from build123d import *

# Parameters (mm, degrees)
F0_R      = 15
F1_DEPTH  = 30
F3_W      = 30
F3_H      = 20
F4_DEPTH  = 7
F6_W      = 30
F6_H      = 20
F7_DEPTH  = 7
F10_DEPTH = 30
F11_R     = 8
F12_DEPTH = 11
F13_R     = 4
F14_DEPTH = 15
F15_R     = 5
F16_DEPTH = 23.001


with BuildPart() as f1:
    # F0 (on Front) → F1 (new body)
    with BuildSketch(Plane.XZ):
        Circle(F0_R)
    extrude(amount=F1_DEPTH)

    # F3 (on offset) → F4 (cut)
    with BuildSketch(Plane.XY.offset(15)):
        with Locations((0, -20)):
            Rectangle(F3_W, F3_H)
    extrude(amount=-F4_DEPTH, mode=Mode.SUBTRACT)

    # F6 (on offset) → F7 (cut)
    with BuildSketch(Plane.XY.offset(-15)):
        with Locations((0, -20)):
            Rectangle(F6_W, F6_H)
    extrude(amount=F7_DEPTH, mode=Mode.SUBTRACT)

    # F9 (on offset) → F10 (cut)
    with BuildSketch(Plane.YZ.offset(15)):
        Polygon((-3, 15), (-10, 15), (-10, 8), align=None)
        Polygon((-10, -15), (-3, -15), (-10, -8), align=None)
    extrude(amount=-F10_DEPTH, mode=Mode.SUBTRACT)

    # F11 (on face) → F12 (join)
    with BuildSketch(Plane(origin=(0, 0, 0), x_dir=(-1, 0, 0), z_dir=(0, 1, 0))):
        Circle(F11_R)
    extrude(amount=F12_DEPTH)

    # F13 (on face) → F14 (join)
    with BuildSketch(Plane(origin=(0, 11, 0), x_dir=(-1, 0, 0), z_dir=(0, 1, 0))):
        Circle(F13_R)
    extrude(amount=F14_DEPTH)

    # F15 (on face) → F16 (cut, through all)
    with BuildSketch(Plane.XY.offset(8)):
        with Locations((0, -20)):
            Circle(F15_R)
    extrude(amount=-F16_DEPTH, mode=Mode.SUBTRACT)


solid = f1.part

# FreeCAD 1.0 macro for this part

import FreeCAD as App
import Part
import Sketcher
from FreeCAD import Vector

doc = App.newDocument("Part")
body = doc.addObject("PartDesign::Body", "Body")

# Sketch on XZ plane
sketch1 = doc.addObject("Sketcher::SketchObject", "Sketch")
body.addObject(sketch1)
sketch1.AttachmentSupport = (doc.XZ_Plane, [""])
sketch1.MapMode = "FlatFace"
sketch1.addGeometry(Part.Circle(Vector(0, 0, 0), Vector(0, 0, 1), 15), False)
sketch1.addConstraint([
    Sketcher.Constraint("Coincident", 0, 3, -1, 1),
    Sketcher.Constraint("Diameter", 0, 30.0),
])
pad1 = doc.addObject("PartDesign::Pad", "Pad")
body.addObject(pad1)
pad1.Profile = sketch1
pad1.Length = 30

# Sketch on XY plane
sketch2 = doc.addObject("Sketcher::SketchObject", "Sketch001")
body.addObject(sketch2)
sketch2.AttachmentSupport = (doc.XY_Plane, [""])
sketch2.MapMode = "FlatFace"
sketch2.AttachmentOffset = App.Placement(Vector(0, 0, 15), App.Rotation())
sketch2.addGeometry([
    Part.LineSegment(Vector(-15, -10, 0), Vector(-15, -30, 0)),
    Part.LineSegment(Vector(-15, -30, 0), Vector(15, -30, 0)),
    Part.LineSegment(Vector(15, -30, 0), Vector(15, -10, 0)),
    Part.LineSegment(Vector(15, -10, 0), Vector(-15, -10, 0)),
], False)
sketch2.addConstraint([
    Sketcher.Constraint("Coincident", 0, 2, 1, 1),
    Sketcher.Constraint("Coincident", 1, 2, 2, 1),
    Sketcher.Constraint("Coincident", 2, 2, 3, 1),
    Sketcher.Constraint("Coincident", 3, 2, 0, 1),
    Sketcher.Constraint("Vertical", 0),
    Sketcher.Constraint("Horizontal", 1),
    Sketcher.Constraint("Vertical", 2),
    Sketcher.Constraint("Horizontal", 3),
    Sketcher.Constraint("DistanceX", 1, 1, 1, 2, 30.0),
    Sketcher.Constraint("DistanceY", 0, 2, 0, 1, 20.0),
    Sketcher.Constraint("DistanceX", 0, 2, -1, 1, 15.0),
    Sketcher.Constraint("DistanceY", 0, 2, -1, 1, 30.0),
])
pocket1 = doc.addObject("PartDesign::Pocket", "Pocket")
body.addObject(pocket1)
pocket1.Profile = sketch2
pocket1.Length = 7

# Sketch on XY plane
sketch3 = doc.addObject("Sketcher::SketchObject", "Sketch002")
body.addObject(sketch3)
sketch3.AttachmentSupport = (doc.XY_Plane, [""])
sketch3.MapMode = "FlatFace"
sketch3.AttachmentOffset = App.Placement(Vector(0, 0, -15), App.Rotation())
sketch3.addGeometry([
    Part.LineSegment(Vector(-15, -10, 0), Vector(-15, -30, 0)),
    Part.LineSegment(Vector(-15, -30, 0), Vector(15, -30, 0)),
    Part.LineSegment(Vector(15, -30, 0), Vector(15, -10, 0)),
    Part.LineSegment(Vector(15, -10, 0), Vector(-15, -10, 0)),
], False)
sketch3.addConstraint([
    Sketcher.Constraint("Coincident", 0, 2, 1, 1),
    Sketcher.Constraint("Coincident", 1, 2, 2, 1),
    Sketcher.Constraint("Coincident", 2, 2, 3, 1),
    Sketcher.Constraint("Coincident", 3, 2, 0, 1),
    Sketcher.Constraint("Vertical", 0),
    Sketcher.Constraint("Horizontal", 1),
    Sketcher.Constraint("Vertical", 2),
    Sketcher.Constraint("Horizontal", 3),
    Sketcher.Constraint("DistanceX", 1, 1, 1, 2, 30.0),
    Sketcher.Constraint("DistanceY", 0, 2, 0, 1, 20.0),
    Sketcher.Constraint("DistanceX", 0, 2, -1, 1, 15.0),
    Sketcher.Constraint("DistanceY", 0, 2, -1, 1, 30.0),
])
pocket2 = doc.addObject("PartDesign::Pocket", "Pocket001")
body.addObject(pocket2)
pocket2.Profile = sketch3
pocket2.Length = 7
pocket2.Reversed = True

# Sketch on YZ plane
sketch4 = doc.addObject("Sketcher::SketchObject", "Sketch003")
body.addObject(sketch4)
sketch4.AttachmentSupport = (doc.YZ_Plane, [""])
sketch4.MapMode = "FlatFace"
sketch4.AttachmentOffset = App.Placement(Vector(0, 0, 15), App.Rotation())
sketch4.addGeometry([
    Part.LineSegment(Vector(-3, 15, 0), Vector(-10, 15, 0)),  # 0
    Part.LineSegment(Vector(-10, 15, 0), Vector(-10, 8, 0)),  # 1
    Part.LineSegment(Vector(-10, 8, 0), Vector(-3, 15, 0)),  # 2
    Part.LineSegment(Vector(-10, -15, 0), Vector(-3, -15, 0)),  # 3
    Part.LineSegment(Vector(-3, -15, 0), Vector(-10, -8, 0)),  # 4
    Part.LineSegment(Vector(-10, -8, 0), Vector(-10, -15, 0)),  # 5
], False)
sketch4.addConstraint([
    Sketcher.Constraint("Coincident", 0, 2, 1, 1),
    Sketcher.Constraint("Coincident", 1, 2, 2, 1),
    Sketcher.Constraint("Coincident", 2, 2, 0, 1),
    Sketcher.Constraint("Coincident", 3, 2, 4, 1),
    Sketcher.Constraint("Coincident", 4, 2, 5, 1),
    Sketcher.Constraint("Coincident", 5, 2, 3, 1),
    Sketcher.Constraint("Horizontal", 0),
    Sketcher.Constraint("Vertical", 1),
    Sketcher.Constraint("Horizontal", 3),
    Sketcher.Constraint("Vertical", 5),
    Sketcher.Constraint("Symmetric", 2, 2, 3, 2, -1),
    Sketcher.Constraint("Symmetric", 1, 2, 4, 2, -1),
    Sketcher.Constraint("Perpendicular", 2, 4),
    Sketcher.Constraint("DistanceX", 0, 2, 0, 1, 7.0),
    Sketcher.Constraint("DistanceX", 0, 2, -1, 1, 10.0),
    Sketcher.Constraint("DistanceY", -1, 1, 0, 2, 15.0),
])
pocket3 = doc.addObject("PartDesign::Pocket", "Pocket002")
body.addObject(pocket3)
pocket3.Profile = sketch4
pocket3.Length = 30

# Sketch on XZ plane
sketch5 = doc.addObject("Sketcher::SketchObject", "Sketch004")
body.addObject(sketch5)
sketch5.AttachmentSupport = (doc.XZ_Plane, [""])
sketch5.MapMode = "FlatFace"
sketch5.addGeometry(Part.Circle(Vector(0, 0, 0), Vector(0, 0, 1), 8), False)
sketch5.addConstraint([
    Sketcher.Constraint("Coincident", 0, 3, -1, 1),
    Sketcher.Constraint("Diameter", 0, 16.0),
])
pad2 = doc.addObject("PartDesign::Pad", "Pad001")
body.addObject(pad2)
pad2.Profile = sketch5
pad2.Length = 11
pad2.Reversed = True

# Sketch on XZ plane
sketch6 = doc.addObject("Sketcher::SketchObject", "Sketch005")
body.addObject(sketch6)
sketch6.AttachmentSupport = (doc.XZ_Plane, [""])
sketch6.MapMode = "FlatFace"
sketch6.AttachmentOffset = App.Placement(Vector(0, 0, -11), App.Rotation())
sketch6.addGeometry(Part.Circle(Vector(0, 0, 0), Vector(0, 0, 1), 4), False)
sketch6.addConstraint([
    Sketcher.Constraint("Coincident", 0, 3, -1, 1),
    Sketcher.Constraint("Diameter", 0, 8.0),
])
pad3 = doc.addObject("PartDesign::Pad", "Pad002")
body.addObject(pad3)
pad3.Profile = sketch6
pad3.Length = 15
pad3.Reversed = True

# Sketch on XY plane
sketch7 = doc.addObject("Sketcher::SketchObject", "Sketch006")
body.addObject(sketch7)
sketch7.AttachmentSupport = (doc.XY_Plane, [""])
sketch7.MapMode = "FlatFace"
sketch7.AttachmentOffset = App.Placement(Vector(0, 0, 8), App.Rotation())
sketch7.addGeometry(Part.Circle(Vector(0, -20, 0), Vector(0, 0, 1), 5), False)
sketch7.addConstraint([
    Sketcher.Constraint("PointOnObject", 0, 3, -2),
    Sketcher.Constraint("Diameter", 0, 10.0),
    Sketcher.Constraint("DistanceY", 0, 3, -1, 1, 20.0),
])
pocket4 = doc.addObject("PartDesign::Pocket", "Pocket003")
body.addObject(pocket4)
pocket4.Profile = sketch7
pocket4.Type = "ThroughAll"

doc.recompute()
